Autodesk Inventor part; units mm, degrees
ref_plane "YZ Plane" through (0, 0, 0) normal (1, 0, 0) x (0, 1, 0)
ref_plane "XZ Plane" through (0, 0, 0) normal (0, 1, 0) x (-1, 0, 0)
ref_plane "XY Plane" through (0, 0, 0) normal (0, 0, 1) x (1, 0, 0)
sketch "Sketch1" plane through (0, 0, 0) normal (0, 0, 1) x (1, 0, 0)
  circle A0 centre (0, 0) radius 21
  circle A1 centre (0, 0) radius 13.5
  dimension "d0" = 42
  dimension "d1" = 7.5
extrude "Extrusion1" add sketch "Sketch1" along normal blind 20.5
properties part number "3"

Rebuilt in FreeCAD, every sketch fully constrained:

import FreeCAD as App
import Part
import Sketcher

doc = App.newDocument("Part")
params = doc.addObject("Spreadsheet::Sheet", "Params")
for row, (alias, value) in enumerate([
    ("sketch1_diameter", "42 mm"),
    ("sketch1_diameter2", "27 mm"),
    ("pad1_length", "20.5 mm"),
], start=1):
    params.set(f"A{row}", alias)
    params.set(f"B{row}", "=" + value)
    params.setAlias(f"B{row}", alias)

body = doc.addObject("PartDesign::Body", "Body")

sketch1 = body.newObject("Sketcher::SketchObject", "Sketch")
sketch1.AttachmentSupport = (doc.getObject("XY_Plane"), [""])
sketch1.MapMode = "FlatFace"
sketch1.addGeometry([
    Part.Circle(App.Vector(0, 0, 0), App.Vector(0, 0, 1), 21),
    Part.Circle(App.Vector(0, 0, 0), App.Vector(0, 0, 1), 14),
], False)
sketch1.addConstraint([
    Sketcher.Constraint("Coincident", 0, 3, -1, 1),
    Sketcher.Constraint("Coincident", 1, 3, -1, 1),
    Sketcher.Constraint("Diameter", 0, 42.0),
    Sketcher.Constraint("Diameter", 1, 27.0),
])
sketch1.setExpression("Constraints[2]", "Params.sketch1_diameter")
sketch1.setExpression("Constraints[3]", "Params.sketch1_diameter2")
pad1 = body.newObject("PartDesign::Pad", "Pad")
pad1.Profile = sketch1
pad1.setExpression("Length", "Params.pad1_length")

doc.recompute()
